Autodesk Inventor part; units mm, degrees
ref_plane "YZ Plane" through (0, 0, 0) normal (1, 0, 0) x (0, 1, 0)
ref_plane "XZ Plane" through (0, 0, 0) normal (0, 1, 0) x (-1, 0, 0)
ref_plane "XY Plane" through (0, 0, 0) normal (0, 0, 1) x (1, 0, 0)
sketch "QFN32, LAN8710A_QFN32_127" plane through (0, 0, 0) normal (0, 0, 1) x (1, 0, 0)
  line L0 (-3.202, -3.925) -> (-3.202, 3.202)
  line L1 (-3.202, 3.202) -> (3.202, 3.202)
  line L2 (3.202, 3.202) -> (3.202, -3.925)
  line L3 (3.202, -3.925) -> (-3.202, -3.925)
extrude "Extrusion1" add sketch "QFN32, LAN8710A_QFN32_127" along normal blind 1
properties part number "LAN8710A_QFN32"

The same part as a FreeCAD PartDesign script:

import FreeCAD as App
import Part
import Sketcher
from FreeCAD import Vector
Q = App.Units.Quantity

doc = App.newDocument("Part")
body = doc.addObject("PartDesign::Body", "Body")

sketch1 = doc.addObject("Sketcher::SketchObject", "Sketch")
body.addObject(sketch1)
sketch1.AttachmentSupport = (doc.XY_Plane, [""])
sketch1.MapMode = "FlatFace"
sketch1.addGeometry([
    Part.LineSegment(Vector(-3, 3, 0), Vector(-3, -4, 0)),
    Part.LineSegment(Vector(-3, -4, 0), Vector(3, -4, 0)),
    Part.LineSegment(Vector(3, -4, 0), Vector(3, 3, 0)),
    Part.LineSegment(Vector(3, 3, 0), Vector(-3, 3, 0)),
], False)
sketch1.addConstraint([
    Sketcher.Constraint("Coincident", 0, 2, 1, 1),
    Sketcher.Constraint("Coincident", 1, 2, 2, 1),
    Sketcher.Constraint("Coincident", 2, 2, 3, 1),
    Sketcher.Constraint("Coincident", 3, 2, 0, 1),
    Sketcher.Constraint("Vertical", 0),
    Sketcher.Constraint("Horizontal", 1),
    Sketcher.Constraint("Vertical", 2),
    Sketcher.Constraint("Horizontal", 3),
    Sketcher.Constraint("DistanceX", 1, 1, 1, 2, Q("6.404 mm")),
    Sketcher.Constraint("DistanceY", 0, 2, 0, 1, Q("7.127 mm")),
    Sketcher.Constraint("DistanceX", 0, 2, -1, 1, Q("3.202 mm")),
    Sketcher.Constraint("DistanceY", 0, 2, -1, 1, Q("3.925 mm")),
])
pad1 = doc.addObject("PartDesign::Pad", "Pad")
body.addObject(pad1)
pad1.Profile = sketch1
pad1.Length = 1

doc.recompute()
